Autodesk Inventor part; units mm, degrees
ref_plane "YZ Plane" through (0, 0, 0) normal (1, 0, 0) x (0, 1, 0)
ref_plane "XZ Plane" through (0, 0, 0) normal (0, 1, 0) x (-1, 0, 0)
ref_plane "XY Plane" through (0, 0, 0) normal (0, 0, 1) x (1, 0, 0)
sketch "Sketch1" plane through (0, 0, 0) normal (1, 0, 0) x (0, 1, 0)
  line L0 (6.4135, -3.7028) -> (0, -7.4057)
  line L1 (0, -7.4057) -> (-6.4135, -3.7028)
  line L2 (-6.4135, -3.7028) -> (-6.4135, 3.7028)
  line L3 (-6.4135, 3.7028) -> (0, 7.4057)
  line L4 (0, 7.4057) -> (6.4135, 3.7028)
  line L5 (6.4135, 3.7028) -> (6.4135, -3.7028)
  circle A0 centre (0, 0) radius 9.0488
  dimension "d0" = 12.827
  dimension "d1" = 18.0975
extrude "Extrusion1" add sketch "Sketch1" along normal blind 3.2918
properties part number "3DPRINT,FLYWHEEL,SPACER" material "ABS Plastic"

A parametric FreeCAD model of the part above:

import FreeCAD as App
import Part
import Sketcher
Q = App.Units.Quantity

doc = App.newDocument("Part")
params = doc.addObject("Spreadsheet::Sheet", "Params")
for row, (alias, value) in enumerate([
    ("pad1_length", "3.2918 mm"),
], start=1):
    params.set(f"A{row}", alias)
    params.set(f"B{row}", "=" + value)
    params.setAlias(f"B{row}", alias)

body = doc.addObject("PartDesign::Body", "Body")

sketch1 = body.newObject("Sketcher::SketchObject", "Sketch")
sketch1.AttachmentSupport = (doc.getObject("YZ_Plane"), [""])
sketch1.MapMode = "FlatFace"
sketch1.addGeometry([
    Part.Circle(App.Vector(0, 0, 0), App.Vector(0, 0, 1), 9.0488),
    Part.LineSegment(App.Vector(6.4135, 3.7028, 0), App.Vector(6.4135, -3.7028, 0)),
    Part.LineSegment(App.Vector(6.4135, -3.7028, 0), App.Vector(0, -7.4057, 0)),
    Part.LineSegment(App.Vector(0, -7.4057, 0), App.Vector(-6.4135, -3.7028, 0)),
    Part.LineSegment(App.Vector(-6.4135, -3.7028, 0), App.Vector(-6.4135, 3.7028, 0)),
    Part.LineSegment(App.Vector(-6.4135, 3.7028, 0), App.Vector(0, 7.4057, 0)),
    Part.LineSegment(App.Vector(0, 7.4057, 0), App.Vector(6.4135, 3.7028, 0)),
], False)
sketch1.addConstraint([
    Sketcher.Constraint("Coincident", 1, 2, 2, 1),
    Sketcher.Constraint("Coincident", 2, 2, 3, 1),
    Sketcher.Constraint("Coincident", 3, 2, 4, 1),
    Sketcher.Constraint("Coincident", 4, 2, 5, 1),
    Sketcher.Constraint("Coincident", 5, 2, 6, 1),
    Sketcher.Constraint("Coincident", 6, 2, 1, 1),
    Sketcher.Constraint("Vertical", 1),
    Sketcher.Constraint("Vertical", 4),
    Sketcher.Constraint("Coincident", 0, 3, -1, 1),
    Sketcher.Constraint("Symmetric", 1, 2, 4, 2, -1, 1),
    Sketcher.Constraint("Symmetric", 2, 2, 5, 2, -1, 1),
    Sketcher.Constraint("PointOnObject", 2, 2, -2),
    Sketcher.Constraint("Parallel", 3, 6),
    Sketcher.Constraint("Horizontal", 1, 2, 3, 2),
    Sketcher.Constraint("Diameter", 0, Q("18.0976 mm")),
    Sketcher.Constraint("Angle", 2, Q("-149.9996 deg")),
    Sketcher.Constraint("DistanceX", 3, 2, 1, 2, Q("12.827 mm")),
    Sketcher.Constraint("DistanceY", 1, 2, 1, 1, Q("7.4056 mm")),
])
pad1 = body.newObject("PartDesign::Pad", "Pad")
pad1.Profile = sketch1
pad1.setExpression("Length", "Params.pad1_length")

doc.recompute()
